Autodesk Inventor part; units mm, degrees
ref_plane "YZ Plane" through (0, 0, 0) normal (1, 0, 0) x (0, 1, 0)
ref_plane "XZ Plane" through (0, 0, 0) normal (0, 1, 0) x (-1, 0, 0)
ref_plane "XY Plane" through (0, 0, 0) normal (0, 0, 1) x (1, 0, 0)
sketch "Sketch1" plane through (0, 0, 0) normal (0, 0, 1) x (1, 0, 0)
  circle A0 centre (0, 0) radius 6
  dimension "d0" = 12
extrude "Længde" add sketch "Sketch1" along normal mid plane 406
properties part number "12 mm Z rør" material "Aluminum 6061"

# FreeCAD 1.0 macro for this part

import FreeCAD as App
import Part
import Sketcher

doc = App.newDocument("Part")
body = doc.addObject("PartDesign::Body", "Body")

# Sketch on XY plane
sketch1 = doc.addObject("Sketcher::SketchObject", "Sketch")
body.addObject(sketch1)
sketch1.AttachmentSupport = (doc.XY_Plane, [""])
sketch1.MapMode = "FlatFace"
sketch1.addGeometry(Part.Circle(App.Vector(0, 0, 0), App.Vector(0, 0, 1), 6), False)
sketch1.addConstraint([
    Sketcher.Constraint("Coincident", 0, 3, -1, 1),
    Sketcher.Constraint("Diameter", 0, 12.0),
])
pad1 = doc.addObject("PartDesign::Pad", "Pad")
body.addObject(pad1)
pad1.Profile = sketch1
pad1.Length = 406
pad1.Midplane = True

doc.recompute()
